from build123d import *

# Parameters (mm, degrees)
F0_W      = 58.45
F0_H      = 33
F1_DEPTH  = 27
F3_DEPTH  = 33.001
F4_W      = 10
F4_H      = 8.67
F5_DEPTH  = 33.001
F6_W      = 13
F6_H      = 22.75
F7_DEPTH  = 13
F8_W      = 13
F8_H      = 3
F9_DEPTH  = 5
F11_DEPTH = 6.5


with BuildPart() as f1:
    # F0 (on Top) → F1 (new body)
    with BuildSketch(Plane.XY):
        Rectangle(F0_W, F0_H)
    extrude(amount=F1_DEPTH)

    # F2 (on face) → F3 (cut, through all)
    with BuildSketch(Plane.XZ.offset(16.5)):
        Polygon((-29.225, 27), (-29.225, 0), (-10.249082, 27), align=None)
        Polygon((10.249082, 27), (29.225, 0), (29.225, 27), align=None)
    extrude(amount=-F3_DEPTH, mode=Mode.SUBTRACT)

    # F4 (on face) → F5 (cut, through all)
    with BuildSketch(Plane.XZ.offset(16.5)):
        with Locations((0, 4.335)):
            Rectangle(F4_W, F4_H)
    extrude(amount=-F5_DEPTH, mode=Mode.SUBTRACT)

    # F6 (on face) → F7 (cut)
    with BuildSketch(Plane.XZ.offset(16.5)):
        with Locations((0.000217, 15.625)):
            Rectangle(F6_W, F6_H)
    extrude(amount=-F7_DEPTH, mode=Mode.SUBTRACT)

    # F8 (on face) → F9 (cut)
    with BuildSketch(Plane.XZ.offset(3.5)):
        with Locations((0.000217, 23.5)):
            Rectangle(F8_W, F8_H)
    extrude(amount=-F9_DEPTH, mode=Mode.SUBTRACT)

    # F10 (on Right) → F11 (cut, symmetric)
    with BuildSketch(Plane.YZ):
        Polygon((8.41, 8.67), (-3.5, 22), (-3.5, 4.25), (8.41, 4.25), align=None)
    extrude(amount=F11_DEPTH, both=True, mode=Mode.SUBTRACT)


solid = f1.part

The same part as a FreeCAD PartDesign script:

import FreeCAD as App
import Part
import Sketcher
from FreeCAD import Vector
Q = App.Units.Quantity


def add_polygon(sketch, points):
    """Adds a closed chain of lines whose ends are joined by coincident constraints."""
    first, n = sketch.GeometryCount, len(points)
    for a, b in zip(points, points[1:] + points[:1]):
        sketch.addGeometry(Part.LineSegment(App.Vector(*a, 0), App.Vector(*b, 0)), False)
    for i in range(n):
        sketch.addConstraint(Sketcher.Constraint("Coincident", first + i, 2, first + (i + 1) % n, 1))

doc = App.newDocument("Part")
body = doc.addObject("PartDesign::Body", "Body")

# Sketch on XY plane
sketch1 = doc.addObject("Sketcher::SketchObject", "Sketch")
body.addObject(sketch1)
sketch1.AttachmentSupport = (doc.XY_Plane, [""])
sketch1.MapMode = "FlatFace"
add_polygon(sketch1, [(-29, 16), (-29, -16), (29, -16), (29, 16)])  # lines 0-3
sketch1.addConstraint([
    Sketcher.Constraint("Vertical", 0),
    Sketcher.Constraint("Horizontal", 1),
    Sketcher.Constraint("Vertical", 2),
    Sketcher.Constraint("Horizontal", 3),
    Sketcher.Constraint("Symmetric", 0, 2, 2, 2, -1, 1),
    Sketcher.Constraint("DistanceY", 0, 2, 0, 1, 33.0),
    Sketcher.Constraint("DistanceX", 1, 1, 1, 2, 58.45),
])
pad1 = doc.addObject("PartDesign::Pad", "Pad")
body.addObject(pad1)
pad1.Profile = sketch1
pad1.Length = 27

# Sketch on XZ plane
sketch2 = doc.addObject("Sketcher::SketchObject", "Sketch001")
body.addObject(sketch2)
sketch2.AttachmentSupport = (doc.XZ_Plane, [""])
sketch2.MapMode = "FlatFace"
sketch2.AttachmentOffset = App.Placement(Vector(0, 0, 16.5), App.Rotation())
add_polygon(sketch2, [(-29, 27), (-29, 0), (-10, 27)])  # lines 0-2
add_polygon(sketch2, [(10, 27), (29, 0), (29, 27)])  # lines 3-5
sketch2.addConstraint([
    Sketcher.Constraint("Vertical", 0),
    Sketcher.Constraint("Horizontal", 2),
    Sketcher.Constraint("Vertical", 4),
    Sketcher.Constraint("Horizontal", 5),
    Sketcher.Constraint("Symmetric", 0, 2, 3, 2, -1, 1),
    Sketcher.Constraint("Symmetric", 1, 2, 5, 2, -2),
    Sketcher.Constraint("PointOnObject", 0, 2, -1),
    Sketcher.Constraint("DistanceY", 0, 2, 0, 1, 27.0),
    Sketcher.Constraint("Angle", 1, Q("54.9 deg")),
    Sketcher.Constraint("DistanceX", 0, 2, 3, 2, 58.45),
])
pocket1 = doc.addObject("PartDesign::Pocket", "Pocket")
body.addObject(pocket1)
pocket1.Profile = sketch2
pocket1.Type = "ThroughAll"

# Sketch on XZ plane
sketch3 = doc.addObject("Sketcher::SketchObject", "Sketch002")
body.addObject(sketch3)
sketch3.AttachmentSupport = (doc.XZ_Plane, [""])
sketch3.MapMode = "FlatFace"
sketch3.AttachmentOffset = App.Placement(Vector(0, 0, 16.5), App.Rotation())
add_polygon(sketch3, [(-5, 9), (-5, 0), (5, 0), (5, 9)])  # lines 0-3
sketch3.addConstraint([
    Sketcher.Constraint("Vertical", 0),
    Sketcher.Constraint("Horizontal", 1),
    Sketcher.Constraint("Vertical", 2),
    Sketcher.Constraint("Horizontal", 3),
    Sketcher.Constraint("Symmetric", 0, 2, 1, 2, -1, 1),
    Sketcher.Constraint("DistanceX", 1, 1, 1, 2, 10.0),
    Sketcher.Constraint("DistanceY", 0, 2, 0, 1, 8.67),
])
pocket2 = doc.addObject("PartDesign::Pocket", "Pocket001")
body.addObject(pocket2)
pocket2.Profile = sketch3
pocket2.Type = "ThroughAll"

# Sketch on XZ plane
sketch4 = doc.addObject("Sketcher::SketchObject", "Sketch003")
body.addObject(sketch4)
sketch4.AttachmentSupport = (doc.XZ_Plane, [""])
sketch4.MapMode = "FlatFace"
sketch4.AttachmentOffset = App.Placement(Vector(0, 0, 16.5), App.Rotation())
add_polygon(sketch4, [(-6, 27), (-6, 4), (7, 4), (7, 27)])  # lines 0-3
sketch4.addConstraint([
    Sketcher.Constraint("Vertical", 0),
    Sketcher.Constraint("Horizontal", 1),
    Sketcher.Constraint("Vertical", 2),
    Sketcher.Constraint("Horizontal", 3),
    Sketcher.Constraint("DistanceX", 1, 1, 1, 2, 13.0),
    Sketcher.Constraint("DistanceY", -1, 1, 2, 2, 27.0),
    Sketcher.Constraint("DistanceY", 0, 2, 0, 1, 22.75),
    Sketcher.Constraint("DistanceX", 0, 2, -1, 1, 6.499783),
])
pocket3 = doc.addObject("PartDesign::Pocket", "Pocket002")
body.addObject(pocket3)
pocket3.Profile = sketch4
pocket3.Length = 13

# Sketch on XZ plane
sketch5 = doc.addObject("Sketcher::SketchObject", "Sketch004")
body.addObject(sketch5)
sketch5.AttachmentSupport = (doc.XZ_Plane, [""])
sketch5.MapMode = "FlatFace"
sketch5.AttachmentOffset = App.Placement(Vector(0, 0, 3.5), App.Rotation())
add_polygon(sketch5, [(-6.5, 25), (-6.5, 22), (6.5, 22), (6.5, 25)])  # lines 0-3
sketch5.addConstraint([
    Sketcher.Constraint("Vertical", 0),
    Sketcher.Constraint("Horizontal", 1),
    Sketcher.Constraint("Vertical", 2),
    Sketcher.Constraint("Horizontal", 3),
    Sketcher.Constraint("DistanceX", 1, 1, 1, 2, 13.0),
    Sketcher.Constraint("DistanceY", 0, 2, 0, 1, 3.0),
    Sketcher.Constraint("DistanceY", -1, 1, 0, 2, 22.0),
    Sketcher.Constraint("DistanceX", 0, 2, -1, 1, 6.499783),
])
pocket4 = doc.addObject("PartDesign::Pocket", "Pocket003")
body.addObject(pocket4)
pocket4.Profile = sketch5
pocket4.Length = 5

# Sketch on YZ plane
sketch6 = doc.addObject("Sketcher::SketchObject", "Sketch005")
body.addObject(sketch6)
sketch6.AttachmentSupport = (doc.YZ_Plane, [""])
sketch6.MapMode = "FlatFace"
add_polygon(sketch6, [(8.4, 8.7), (-3.5, 22), (-3.5, 4.2), (8.4, 4.2)])  # lines 0-3
sketch6.addConstraint([
    Sketcher.Constraint("Vertical", 1),
    Sketcher.Constraint("Horizontal", 2),
    Sketcher.Constraint("Vertical", 3),
    Sketcher.Constraint("DistanceY", -1, 1, 0, 2, 22.0),
    Sketcher.Constraint("DistanceX", 2, 1, 2, 2, 11.91),
    Sketcher.Constraint("DistanceY", 1, 2, 1, 1, 17.75),
    Sketcher.Constraint("DistanceY", 3, 1, 3, 2, 4.42),
    Sketcher.Constraint("DistanceX", 0, 2, -1, 1, 3.5),
])
pocket5 = doc.addObject("PartDesign::Pocket", "Pocket004")
body.addObject(pocket5)
pocket5.Profile = sketch6
pocket5.Length = 13
pocket5.Midplane = True

doc.recompute()
